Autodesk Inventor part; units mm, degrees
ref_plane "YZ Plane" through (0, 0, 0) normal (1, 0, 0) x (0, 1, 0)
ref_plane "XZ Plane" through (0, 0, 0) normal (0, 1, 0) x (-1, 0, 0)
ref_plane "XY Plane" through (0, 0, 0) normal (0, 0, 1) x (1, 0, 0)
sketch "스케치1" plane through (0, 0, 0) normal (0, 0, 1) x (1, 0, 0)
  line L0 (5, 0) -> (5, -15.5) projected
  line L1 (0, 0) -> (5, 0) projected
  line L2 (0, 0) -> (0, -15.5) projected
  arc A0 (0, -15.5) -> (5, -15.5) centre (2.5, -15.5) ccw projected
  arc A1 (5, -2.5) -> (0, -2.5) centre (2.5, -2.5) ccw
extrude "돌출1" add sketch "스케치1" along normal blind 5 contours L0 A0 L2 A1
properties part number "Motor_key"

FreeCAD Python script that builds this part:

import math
import FreeCAD as App
import Part
import Sketcher
from FreeCAD import Vector
Q = App.Units.Quantity

doc = App.newDocument("Part")
body = doc.addObject("PartDesign::Body", "Body")

# Sketch on XY plane
sketch1 = doc.addObject("Sketcher::SketchObject", "Sketch")
body.addObject(sketch1)
sketch1.AttachmentSupport = (doc.XY_Plane, [""])
sketch1.MapMode = "FlatFace"
sketch1.addGeometry([
    Part.LineSegment(Vector(5, -15.5, 0), Vector(5, -2.5, 0)),
    Part.ArcOfCircle(Part.Circle(Vector(2.5, -2.5, 0), Vector(0, 0, 1), 2.5), math.radians(0), math.radians(180)),
    Part.LineSegment(Vector(0, -2.5, 0), Vector(0, -15.5, 0)),
    Part.ArcOfCircle(Part.Circle(Vector(2.5, -15.5, 0), Vector(0, 0, 1), 2.5), math.radians(180), math.radians(360)),
], False)
sketch1.addConstraint([
    Sketcher.Constraint("Tangent", 0, 2, 1, 1),
    Sketcher.Constraint("Tangent", 1, 2, 2, 1),
    Sketcher.Constraint("Tangent", 2, 2, 3, 1),
    Sketcher.Constraint("Tangent", 3, 2, 0, 1),
    Sketcher.Constraint("Vertical", 0),
    Sketcher.Constraint("Vertical", 2),
    Sketcher.Constraint("PointOnObject", 1, 2, -2),
    Sketcher.Constraint("Radius", 1, Q("2.5 mm")),
    Sketcher.Constraint("DistanceY", 0, 1, 0, 2, Q("13 mm")),
    Sketcher.Constraint("DistanceY", 1, 3, -1, 1, Q("2.5 mm")),
])
pad1 = doc.addObject("PartDesign::Pad", "Pad")
body.addObject(pad1)
pad1.Profile = sketch1
pad1.Length = 5

doc.recompute()
